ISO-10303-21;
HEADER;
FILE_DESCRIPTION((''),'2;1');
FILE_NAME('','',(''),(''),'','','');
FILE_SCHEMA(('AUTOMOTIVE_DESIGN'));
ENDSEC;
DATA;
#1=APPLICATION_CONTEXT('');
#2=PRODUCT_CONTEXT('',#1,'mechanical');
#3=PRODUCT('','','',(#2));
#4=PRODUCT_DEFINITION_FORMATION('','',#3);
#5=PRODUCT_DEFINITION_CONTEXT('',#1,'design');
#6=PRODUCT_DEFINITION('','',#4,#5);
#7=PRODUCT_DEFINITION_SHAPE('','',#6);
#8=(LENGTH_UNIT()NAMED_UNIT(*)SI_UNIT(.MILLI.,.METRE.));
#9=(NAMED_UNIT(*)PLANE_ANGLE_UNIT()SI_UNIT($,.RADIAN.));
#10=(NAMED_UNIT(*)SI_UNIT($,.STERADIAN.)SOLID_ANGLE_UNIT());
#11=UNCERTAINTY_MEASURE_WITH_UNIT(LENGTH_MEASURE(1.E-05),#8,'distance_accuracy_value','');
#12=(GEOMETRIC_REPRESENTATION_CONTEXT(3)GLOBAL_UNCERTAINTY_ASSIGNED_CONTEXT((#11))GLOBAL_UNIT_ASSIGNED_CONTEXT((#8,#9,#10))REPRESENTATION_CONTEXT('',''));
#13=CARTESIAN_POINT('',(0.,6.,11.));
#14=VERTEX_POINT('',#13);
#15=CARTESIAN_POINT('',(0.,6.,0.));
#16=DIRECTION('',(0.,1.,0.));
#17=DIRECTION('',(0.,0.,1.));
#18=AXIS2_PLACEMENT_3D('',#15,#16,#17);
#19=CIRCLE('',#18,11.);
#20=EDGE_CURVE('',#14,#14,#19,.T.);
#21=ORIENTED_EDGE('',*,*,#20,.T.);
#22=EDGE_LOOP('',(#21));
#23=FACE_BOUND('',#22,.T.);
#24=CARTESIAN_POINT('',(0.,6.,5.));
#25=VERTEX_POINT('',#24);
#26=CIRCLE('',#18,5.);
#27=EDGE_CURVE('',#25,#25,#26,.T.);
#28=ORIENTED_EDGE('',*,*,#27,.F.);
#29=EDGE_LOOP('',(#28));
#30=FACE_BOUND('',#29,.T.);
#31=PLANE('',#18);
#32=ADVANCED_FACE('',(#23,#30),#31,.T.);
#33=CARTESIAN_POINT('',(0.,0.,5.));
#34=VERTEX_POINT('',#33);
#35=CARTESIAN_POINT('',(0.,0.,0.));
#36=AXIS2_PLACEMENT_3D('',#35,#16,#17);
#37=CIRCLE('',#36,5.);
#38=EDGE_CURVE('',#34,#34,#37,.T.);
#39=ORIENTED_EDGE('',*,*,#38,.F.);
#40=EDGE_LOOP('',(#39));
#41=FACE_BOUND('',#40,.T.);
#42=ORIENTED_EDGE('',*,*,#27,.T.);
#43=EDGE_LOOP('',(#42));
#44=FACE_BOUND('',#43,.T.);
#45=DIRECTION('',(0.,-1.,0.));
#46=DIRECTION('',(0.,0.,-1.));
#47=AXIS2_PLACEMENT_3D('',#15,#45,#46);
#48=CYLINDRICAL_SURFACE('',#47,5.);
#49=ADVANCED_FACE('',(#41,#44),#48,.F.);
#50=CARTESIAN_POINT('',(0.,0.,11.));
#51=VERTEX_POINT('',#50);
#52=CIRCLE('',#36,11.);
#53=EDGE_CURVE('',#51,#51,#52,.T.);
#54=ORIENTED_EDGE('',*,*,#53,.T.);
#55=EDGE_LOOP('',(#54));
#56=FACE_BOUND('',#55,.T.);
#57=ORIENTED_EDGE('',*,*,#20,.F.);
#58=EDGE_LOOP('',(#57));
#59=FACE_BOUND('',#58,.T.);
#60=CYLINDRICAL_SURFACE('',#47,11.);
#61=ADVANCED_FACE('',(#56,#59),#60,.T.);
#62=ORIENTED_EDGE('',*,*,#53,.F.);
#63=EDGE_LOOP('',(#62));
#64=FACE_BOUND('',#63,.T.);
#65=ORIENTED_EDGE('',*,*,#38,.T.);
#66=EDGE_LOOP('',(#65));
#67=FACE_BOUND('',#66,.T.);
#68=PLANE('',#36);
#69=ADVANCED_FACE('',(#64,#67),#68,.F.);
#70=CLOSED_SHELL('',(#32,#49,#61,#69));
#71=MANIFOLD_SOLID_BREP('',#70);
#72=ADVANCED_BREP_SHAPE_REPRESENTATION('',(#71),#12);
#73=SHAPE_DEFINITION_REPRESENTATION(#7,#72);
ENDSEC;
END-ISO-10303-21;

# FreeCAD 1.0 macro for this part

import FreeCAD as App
import Part
import Sketcher

V = App.Vector
Q = App.Units.Quantity

doc = App.newDocument("Part")
body = doc.addObject("PartDesign::Body", "Body")

sketch1 = body.newObject("Sketcher::SketchObject", "Sketch")
sketch1.AttachmentSupport = (doc.getObject("XZ_Plane"), [""])
sketch1.MapMode = "FlatFace"
sketch1.addGeometry(Part.Circle(V(0, 0, 0), V(0, 0, 1), 11), False)
sketch1.addGeometry(Part.Circle(V(0, 0, 0), V(0, 0, 1), 5), False)
sketch1.addConstraint(Sketcher.Constraint("Coincident", 0, 3, -1, 1))
sketch1.addConstraint(Sketcher.Constraint("Coincident", 1, 3, -1, 1))
sketch1.addConstraint(Sketcher.Constraint("Diameter", 0, Q("22 mm")))
sketch1.addConstraint(Sketcher.Constraint("Diameter", 1, Q("10 mm")))
pad1 = body.newObject("PartDesign::Pad", "Pad")
pad1.Profile = sketch1
pad1.Length = 6
pad1.Reversed = True

doc.recompute()
